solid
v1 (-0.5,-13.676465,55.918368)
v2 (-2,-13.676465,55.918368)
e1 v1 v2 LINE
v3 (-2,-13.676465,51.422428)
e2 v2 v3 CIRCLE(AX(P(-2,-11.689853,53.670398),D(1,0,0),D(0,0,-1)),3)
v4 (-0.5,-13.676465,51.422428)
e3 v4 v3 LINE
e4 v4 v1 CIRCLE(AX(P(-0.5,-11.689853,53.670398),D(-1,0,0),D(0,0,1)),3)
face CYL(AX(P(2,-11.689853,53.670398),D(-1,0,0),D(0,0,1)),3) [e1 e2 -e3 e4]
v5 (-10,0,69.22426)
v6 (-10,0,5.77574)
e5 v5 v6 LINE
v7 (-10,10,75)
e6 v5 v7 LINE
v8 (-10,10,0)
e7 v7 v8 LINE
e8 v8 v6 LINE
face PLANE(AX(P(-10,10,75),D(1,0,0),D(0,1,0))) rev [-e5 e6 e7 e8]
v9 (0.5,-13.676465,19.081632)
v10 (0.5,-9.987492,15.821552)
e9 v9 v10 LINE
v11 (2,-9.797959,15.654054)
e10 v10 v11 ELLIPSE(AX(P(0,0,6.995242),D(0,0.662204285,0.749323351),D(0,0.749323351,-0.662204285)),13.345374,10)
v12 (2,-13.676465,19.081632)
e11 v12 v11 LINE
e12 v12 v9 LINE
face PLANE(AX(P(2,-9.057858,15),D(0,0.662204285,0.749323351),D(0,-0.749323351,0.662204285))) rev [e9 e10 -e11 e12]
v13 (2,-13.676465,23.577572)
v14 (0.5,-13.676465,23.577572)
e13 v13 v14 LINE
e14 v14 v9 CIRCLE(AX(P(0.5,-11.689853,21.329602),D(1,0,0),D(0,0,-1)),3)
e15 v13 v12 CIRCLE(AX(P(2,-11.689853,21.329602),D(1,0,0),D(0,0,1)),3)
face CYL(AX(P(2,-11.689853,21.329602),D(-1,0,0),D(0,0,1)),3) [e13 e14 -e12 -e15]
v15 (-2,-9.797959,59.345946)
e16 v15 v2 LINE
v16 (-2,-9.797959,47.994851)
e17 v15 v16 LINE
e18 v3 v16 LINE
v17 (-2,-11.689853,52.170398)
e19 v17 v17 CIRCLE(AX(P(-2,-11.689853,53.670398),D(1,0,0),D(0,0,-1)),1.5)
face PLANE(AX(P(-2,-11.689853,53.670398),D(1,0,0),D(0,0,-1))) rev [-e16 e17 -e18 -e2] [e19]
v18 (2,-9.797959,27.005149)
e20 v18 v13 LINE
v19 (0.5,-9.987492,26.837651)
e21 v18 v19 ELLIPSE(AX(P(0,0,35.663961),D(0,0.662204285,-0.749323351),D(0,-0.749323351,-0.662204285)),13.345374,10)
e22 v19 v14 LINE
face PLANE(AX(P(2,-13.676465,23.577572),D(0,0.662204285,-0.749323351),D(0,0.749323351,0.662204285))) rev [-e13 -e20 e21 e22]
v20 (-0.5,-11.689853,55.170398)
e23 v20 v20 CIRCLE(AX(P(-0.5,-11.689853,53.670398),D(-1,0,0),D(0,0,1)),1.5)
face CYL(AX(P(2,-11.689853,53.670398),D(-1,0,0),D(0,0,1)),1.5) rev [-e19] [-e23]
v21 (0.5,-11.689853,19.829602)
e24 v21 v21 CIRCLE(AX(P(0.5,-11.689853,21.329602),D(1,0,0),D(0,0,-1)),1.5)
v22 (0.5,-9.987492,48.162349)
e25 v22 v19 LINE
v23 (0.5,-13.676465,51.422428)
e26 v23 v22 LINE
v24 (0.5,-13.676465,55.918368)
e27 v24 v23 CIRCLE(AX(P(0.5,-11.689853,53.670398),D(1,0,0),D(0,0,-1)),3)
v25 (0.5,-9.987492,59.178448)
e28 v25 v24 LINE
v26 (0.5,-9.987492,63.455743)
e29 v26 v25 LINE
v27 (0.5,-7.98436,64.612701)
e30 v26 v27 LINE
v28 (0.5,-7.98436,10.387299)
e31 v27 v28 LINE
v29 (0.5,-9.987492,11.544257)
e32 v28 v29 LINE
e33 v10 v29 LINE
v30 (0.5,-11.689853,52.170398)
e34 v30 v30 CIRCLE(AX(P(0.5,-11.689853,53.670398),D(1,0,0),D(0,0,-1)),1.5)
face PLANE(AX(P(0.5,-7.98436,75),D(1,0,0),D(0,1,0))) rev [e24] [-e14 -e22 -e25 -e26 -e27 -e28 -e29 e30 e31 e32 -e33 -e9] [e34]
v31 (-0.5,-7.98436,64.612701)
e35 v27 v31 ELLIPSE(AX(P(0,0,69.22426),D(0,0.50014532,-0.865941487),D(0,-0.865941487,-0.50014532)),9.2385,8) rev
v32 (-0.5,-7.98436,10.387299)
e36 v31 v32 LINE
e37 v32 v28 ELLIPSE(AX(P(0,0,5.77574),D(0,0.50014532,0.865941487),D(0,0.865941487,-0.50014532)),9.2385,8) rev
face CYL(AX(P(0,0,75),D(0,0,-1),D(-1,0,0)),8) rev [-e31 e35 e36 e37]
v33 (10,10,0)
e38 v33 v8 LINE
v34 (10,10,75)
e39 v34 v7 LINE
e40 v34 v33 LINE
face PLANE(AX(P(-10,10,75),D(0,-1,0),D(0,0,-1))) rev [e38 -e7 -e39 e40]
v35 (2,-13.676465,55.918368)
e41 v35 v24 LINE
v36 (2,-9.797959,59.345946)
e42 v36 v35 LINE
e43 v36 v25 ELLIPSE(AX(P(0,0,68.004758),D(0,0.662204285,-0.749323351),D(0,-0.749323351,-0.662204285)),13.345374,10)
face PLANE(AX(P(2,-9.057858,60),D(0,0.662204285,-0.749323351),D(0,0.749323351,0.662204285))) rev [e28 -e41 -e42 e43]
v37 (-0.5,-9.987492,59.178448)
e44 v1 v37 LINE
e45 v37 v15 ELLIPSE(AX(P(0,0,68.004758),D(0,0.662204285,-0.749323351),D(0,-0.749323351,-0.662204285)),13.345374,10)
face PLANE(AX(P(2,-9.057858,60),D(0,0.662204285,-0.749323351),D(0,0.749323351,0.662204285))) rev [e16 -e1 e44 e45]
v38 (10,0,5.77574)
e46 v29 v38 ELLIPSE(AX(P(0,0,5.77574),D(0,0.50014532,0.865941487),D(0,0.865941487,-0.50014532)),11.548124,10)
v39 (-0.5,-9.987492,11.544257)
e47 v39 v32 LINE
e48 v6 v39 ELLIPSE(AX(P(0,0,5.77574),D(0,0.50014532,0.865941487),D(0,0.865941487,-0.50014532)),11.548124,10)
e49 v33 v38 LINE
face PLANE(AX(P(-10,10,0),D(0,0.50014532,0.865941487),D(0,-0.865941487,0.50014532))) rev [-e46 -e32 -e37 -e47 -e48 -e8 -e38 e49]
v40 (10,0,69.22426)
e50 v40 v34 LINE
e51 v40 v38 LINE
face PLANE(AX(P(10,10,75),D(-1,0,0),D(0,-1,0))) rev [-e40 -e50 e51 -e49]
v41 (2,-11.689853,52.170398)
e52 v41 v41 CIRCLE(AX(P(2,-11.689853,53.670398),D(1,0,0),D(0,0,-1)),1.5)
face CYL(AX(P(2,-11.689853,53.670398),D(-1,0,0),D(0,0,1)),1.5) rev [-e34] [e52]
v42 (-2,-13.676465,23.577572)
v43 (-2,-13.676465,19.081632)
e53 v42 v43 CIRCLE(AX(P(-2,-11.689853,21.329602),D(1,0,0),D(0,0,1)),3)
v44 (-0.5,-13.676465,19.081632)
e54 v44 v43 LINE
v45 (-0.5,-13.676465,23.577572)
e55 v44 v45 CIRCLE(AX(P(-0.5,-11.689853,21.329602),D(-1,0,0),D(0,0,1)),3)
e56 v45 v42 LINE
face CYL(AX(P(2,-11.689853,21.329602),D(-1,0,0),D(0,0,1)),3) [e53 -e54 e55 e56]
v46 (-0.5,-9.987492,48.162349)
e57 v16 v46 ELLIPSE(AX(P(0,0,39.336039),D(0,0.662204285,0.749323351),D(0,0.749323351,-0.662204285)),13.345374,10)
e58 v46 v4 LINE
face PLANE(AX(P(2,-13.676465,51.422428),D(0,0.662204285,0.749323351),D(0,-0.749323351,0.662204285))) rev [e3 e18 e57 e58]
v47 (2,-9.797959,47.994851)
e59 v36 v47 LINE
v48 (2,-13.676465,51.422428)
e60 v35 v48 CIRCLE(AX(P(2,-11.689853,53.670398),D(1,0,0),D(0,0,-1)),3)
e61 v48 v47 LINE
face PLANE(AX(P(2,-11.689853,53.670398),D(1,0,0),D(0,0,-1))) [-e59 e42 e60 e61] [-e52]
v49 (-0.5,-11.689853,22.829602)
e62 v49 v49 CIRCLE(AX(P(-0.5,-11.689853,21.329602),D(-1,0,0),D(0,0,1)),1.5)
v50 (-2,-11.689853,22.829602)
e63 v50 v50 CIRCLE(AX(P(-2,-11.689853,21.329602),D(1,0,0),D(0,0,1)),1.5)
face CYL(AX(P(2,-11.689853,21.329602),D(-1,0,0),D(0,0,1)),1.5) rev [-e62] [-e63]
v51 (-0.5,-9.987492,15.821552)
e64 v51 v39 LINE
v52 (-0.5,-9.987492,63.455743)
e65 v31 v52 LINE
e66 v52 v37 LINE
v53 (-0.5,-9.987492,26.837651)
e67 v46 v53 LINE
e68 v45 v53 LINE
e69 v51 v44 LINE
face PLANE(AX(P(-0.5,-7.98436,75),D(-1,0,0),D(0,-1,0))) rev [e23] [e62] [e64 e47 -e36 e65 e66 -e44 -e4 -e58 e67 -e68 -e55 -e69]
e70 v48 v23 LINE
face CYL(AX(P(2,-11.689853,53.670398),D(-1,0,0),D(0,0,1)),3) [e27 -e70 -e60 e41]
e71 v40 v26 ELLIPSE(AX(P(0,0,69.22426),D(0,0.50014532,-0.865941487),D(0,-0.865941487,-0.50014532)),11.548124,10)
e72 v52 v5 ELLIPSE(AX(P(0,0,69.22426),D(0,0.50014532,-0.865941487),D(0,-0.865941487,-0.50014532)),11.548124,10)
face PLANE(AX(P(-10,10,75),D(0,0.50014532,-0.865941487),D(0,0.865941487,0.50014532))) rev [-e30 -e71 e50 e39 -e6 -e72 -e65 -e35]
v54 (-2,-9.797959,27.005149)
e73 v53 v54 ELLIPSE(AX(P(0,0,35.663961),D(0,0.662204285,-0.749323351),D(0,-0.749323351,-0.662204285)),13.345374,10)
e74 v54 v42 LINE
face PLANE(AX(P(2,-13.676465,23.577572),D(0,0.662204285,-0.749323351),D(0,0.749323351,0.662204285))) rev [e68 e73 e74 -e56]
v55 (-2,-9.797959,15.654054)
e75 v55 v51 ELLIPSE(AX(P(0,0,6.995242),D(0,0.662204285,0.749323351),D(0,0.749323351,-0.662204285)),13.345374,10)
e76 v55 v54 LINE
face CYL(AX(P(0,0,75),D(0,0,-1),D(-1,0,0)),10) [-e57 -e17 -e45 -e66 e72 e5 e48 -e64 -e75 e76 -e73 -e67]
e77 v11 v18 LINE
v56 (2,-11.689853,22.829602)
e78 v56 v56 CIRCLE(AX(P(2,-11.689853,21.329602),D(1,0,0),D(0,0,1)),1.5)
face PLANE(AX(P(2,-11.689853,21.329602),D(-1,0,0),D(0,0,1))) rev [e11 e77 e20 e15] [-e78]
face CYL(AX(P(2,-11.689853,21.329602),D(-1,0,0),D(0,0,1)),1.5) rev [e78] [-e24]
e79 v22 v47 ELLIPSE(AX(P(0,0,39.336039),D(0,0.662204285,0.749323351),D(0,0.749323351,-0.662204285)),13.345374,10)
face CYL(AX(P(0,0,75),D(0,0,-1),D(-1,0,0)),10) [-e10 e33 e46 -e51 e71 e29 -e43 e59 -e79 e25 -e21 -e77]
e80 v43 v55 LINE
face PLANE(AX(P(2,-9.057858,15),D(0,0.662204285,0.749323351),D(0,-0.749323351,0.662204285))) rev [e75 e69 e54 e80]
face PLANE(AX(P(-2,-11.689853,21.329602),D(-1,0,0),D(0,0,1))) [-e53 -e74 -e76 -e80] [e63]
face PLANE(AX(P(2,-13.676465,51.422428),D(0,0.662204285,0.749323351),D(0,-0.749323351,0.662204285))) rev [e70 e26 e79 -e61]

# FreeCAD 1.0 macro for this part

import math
import FreeCAD as App
import Part
import Sketcher

doc = App.newDocument("Part")
body = doc.addObject("PartDesign::Body", "Body")

sketch1 = body.newObject("Sketcher::SketchObject", "Sketch")
sketch1.AttachmentSupport = (doc.getObject("XY_Plane"), [""])
sketch1.MapMode = "FlatFace"
sketch1.addGeometry([
    Part.LineSegment(App.Vector(10, 10, 0), App.Vector(-10, 10, 0)),
    Part.LineSegment(App.Vector(-10, 10, 0), App.Vector(-10, 0, 0)),
    Part.ArcOfCircle(Part.Circle(App.Vector(0, 0, 0), App.Vector(0, 0, 1), 10), math.radians(180), math.radians(267)),
    Part.LineSegment(App.Vector(-0.5, -10, 0), App.Vector(-0.5, -8, 0)),
    Part.ArcOfCircle(Part.Circle(App.Vector(0, 0, 0), App.Vector(0, 0, 1), 8), math.radians(-86), math.radians(266)),
    Part.LineSegment(App.Vector(0.5, -8, 0), App.Vector(0.5, -10, 0)),
    Part.ArcOfCircle(Part.Circle(App.Vector(0, 0, 0), App.Vector(0, 0, 1), 10), math.radians(-87), math.radians(0)),
    Part.LineSegment(App.Vector(10, 0, 0), App.Vector(10, 10, 0)),
], False)
sketch1.addConstraint([
    Sketcher.Constraint("Coincident", 0, 2, 1, 1),
    Sketcher.Constraint("Tangent", 1, 2, 2, 1),
    Sketcher.Constraint("Coincident", 2, 2, 3, 1),
    Sketcher.Constraint("Coincident", 3, 2, 4, 2),
    Sketcher.Constraint("Coincident", 4, 1, 5, 1),
    Sketcher.Constraint("Coincident", 5, 2, 6, 1),
    Sketcher.Constraint("Tangent", 6, 2, 7, 1),
    Sketcher.Constraint("Coincident", 7, 2, 0, 1),
    Sketcher.Constraint("Horizontal", 0),
    Sketcher.Constraint("Vertical", 1),
    Sketcher.Constraint("Vertical", 3),
    Sketcher.Constraint("Vertical", 5),
    Sketcher.Constraint("Vertical", 7),
    Sketcher.Constraint("Coincident", 2, 3, -1, 1),
    Sketcher.Constraint("Coincident", 4, 3, -1, 1),
    Sketcher.Constraint("Coincident", 6, 3, -1, 1),
    Sketcher.Constraint("Equal", 2, 6),
    Sketcher.Constraint("Horizontal", 3, 2, 4, 1),
    Sketcher.Constraint("Radius", 2, 10.0),
    Sketcher.Constraint("Radius", 4, 8.0),
    Sketcher.Constraint("DistanceY", 1, 2, 1, 1, 10.0),
    Sketcher.Constraint("DistanceX", 3, 2, 4, 1, 1.0),
])
pad1 = body.newObject("PartDesign::Pad", "Pad")
pad1.Profile = sketch1
pad1.Length = 75

sketch2 = body.newObject("Sketcher::SketchObject", "Sketch001")
sketch2.AttachmentSupport = (doc.getObject("YZ_Plane"), [""])
sketch2.MapMode = "FlatFace"
sketch2.addGeometry([
    Part.LineSegment(App.Vector(-9.1, 60, 0), App.Vector(-13.7, 55.9, 0)),
    Part.ArcOfCircle(Part.Circle(App.Vector(-11.7, 53.7, 0), App.Vector(0, 0, 1), 3), math.radians(131), math.radians(229)),
    Part.LineSegment(App.Vector(-13.7, 51.4, 0), App.Vector(-9.1, 47.3, 0)),
    Part.LineSegment(App.Vector(-9.1, 47.3, 0), App.Vector(-9.1, 60, 0)),
    Part.Circle(App.Vector(-11.7, 53.7, 0), App.Vector(0, 0, 1), 1.5),
    Part.LineSegment(App.Vector(-13.7, 19.1, 0), App.Vector(-9.1, 15, 0)),
    Part.LineSegment(App.Vector(-9.1, 15, 0), App.Vector(-9.1, 27.7, 0)),
    Part.LineSegment(App.Vector(-9.1, 27.7, 0), App.Vector(-13.7, 23.6, 0)),
    Part.ArcOfCircle(Part.Circle(App.Vector(-11.7, 21.3, 0), App.Vector(0, 0, 1), 3), math.radians(131), math.radians(229)),
    Part.Circle(App.Vector(-11.7, 21.3, 0), App.Vector(0, 0, 1), 1.5),
], False)
sketch2.addConstraint([
    Sketcher.Constraint("Tangent", 0, 2, 1, 1),
    Sketcher.Constraint("Tangent", 1, 2, 2, 1),
    Sketcher.Constraint("Coincident", 2, 2, 3, 1),
    Sketcher.Constraint("Coincident", 3, 2, 0, 1),
    Sketcher.Constraint("Coincident", 5, 2, 6, 1),
    Sketcher.Constraint("Coincident", 6, 2, 7, 1),
    Sketcher.Constraint("Tangent", 7, 2, 8, 1),
    Sketcher.Constraint("Tangent", 8, 2, 5, 1),
    Sketcher.Constraint("Vertical", 3),
    Sketcher.Constraint("Vertical", 6),
    Sketcher.Constraint("Coincident", 4, 3, 1, 3),
    Sketcher.Constraint("Coincident", 9, 3, 8, 3),
    Sketcher.Constraint("Equal", 1, 8),
    Sketcher.Constraint("Equal", 4, 9),
    Sketcher.Constraint("Parallel", 2, 5),
    Sketcher.Constraint("Parallel", 0, 7),
    Sketcher.Constraint("Vertical", 4, 3, 8, 3),
    Sketcher.Constraint("Vertical", 0, 2, 1, 2),
    Sketcher.Constraint("Vertical", 3, 2, 5, 2),
    Sketcher.Constraint("Diameter", 4, 3.0),
    Sketcher.Constraint("Radius", 1, 3.0),
    Sketcher.Constraint("DistanceY", -1, 1, 3, 2, 60.0),
    Sketcher.Constraint("DistanceY", -1, 1, 5, 2, 15.0),
    Sketcher.Constraint("DistanceY", -1, 1, 1, 3, 53.670398),
    Sketcher.Constraint("DistanceY", -1, 1, 0, 2, 55.918368),
    Sketcher.Constraint("DistanceX", 1, 3, -1, 1, 11.689853),
])
pad2 = body.newObject("PartDesign::Pad", "Pad001")
pad2.Profile = sketch2
pad2.Length = 4
pad2.Midplane = True

sketch3 = body.newObject("Sketcher::SketchObject", "Sketch002")
sketch3.AttachmentSupport = (doc.getObject("XY_Plane"), [""])
sketch3.MapMode = "FlatFace"
sketch3.addGeometry([
    Part.LineSegment(App.Vector(-0.5, -8, 0), App.Vector(-0.5, -14.7, 0)),
    Part.LineSegment(App.Vector(-0.5, -14.7, 0), App.Vector(0.5, -14.7, 0)),
    Part.LineSegment(App.Vector(0.5, -14.7, 0), App.Vector(0.5, -8, 0)),
    Part.LineSegment(App.Vector(0.5, -8, 0), App.Vector(-0.5, -8, 0)),
], False)
sketch3.addConstraint([
    Sketcher.Constraint("Coincident", 0, 2, 1, 1),
    Sketcher.Constraint("Coincident", 1, 2, 2, 1),
    Sketcher.Constraint("Coincident", 2, 2, 3, 1),
    Sketcher.Constraint("Coincident", 3, 2, 0, 1),
    Sketcher.Constraint("Vertical", 0),
    Sketcher.Constraint("Horizontal", 1),
    Sketcher.Constraint("Vertical", 2),
    Sketcher.Constraint("Horizontal", 3),
    Sketcher.Constraint("DistanceX", 1, 1, 1, 2, 1.0),
    Sketcher.Constraint("DistanceX", 0, 2, -1, 1, 0.5),
    Sketcher.Constraint("DistanceY", 0, 2, 0, 1, 6.705493),
    Sketcher.Constraint("DistanceY", 2, 2, -1, 1, 7.98436),
])
pocket1 = body.newObject("PartDesign::Pocket", "Pocket")
pocket1.Profile = sketch3
pocket1.Type = "ThroughAll"
pocket1.Midplane = True

sketch4 = body.newObject("Sketcher::SketchObject", "Sketch003")
sketch4.AttachmentSupport = (doc.getObject("YZ_Plane"), [""])
sketch4.MapMode = "FlatFace"
sketch4.addGeometry([
    Part.LineSegment(App.Vector(-10, 63, 0), App.Vector(10, 75, 0)),
    Part.LineSegment(App.Vector(10, 75, 0), App.Vector(-10, 75, 0)),
    Part.LineSegment(App.Vector(-10, 75, 0), App.Vector(-10, 63, 0)),
    Part.LineSegment(App.Vector(-10, 12, 0), App.Vector(-10, 0, 0)),
    Part.LineSegment(App.Vector(-10, 0, 0), App.Vector(10, 0, 0)),
    Part.LineSegment(App.Vector(10, 0, 0), App.Vector(-10, 12, 0)),
], False)
sketch4.addConstraint([
    Sketcher.Constraint("Coincident", 0, 2, 1, 1),
    Sketcher.Constraint("Coincident", 1, 2, 2, 1),
    Sketcher.Constraint("Coincident", 2, 2, 0, 1),
    Sketcher.Constraint("Coincident", 3, 2, 4, 1),
    Sketcher.Constraint("Coincident", 4, 2, 5, 1),
    Sketcher.Constraint("Coincident", 5, 2, 3, 1),
    Sketcher.Constraint("Horizontal", 1),
    Sketcher.Constraint("Vertical", 2),
    Sketcher.Constraint("Vertical", 3),
    Sketcher.Constraint("Horizontal", 4),
    Sketcher.Constraint("PointOnObject", 3, 2, -1),
    Sketcher.Constraint("Vertical", 2, 2, 3, 2),
    Sketcher.Constraint("Vertical", 0, 2, 4, 2),
    Sketcher.Constraint("Equal", 2, 3),
    Sketcher.Constraint("DistanceX", -1, 1, 0, 2, 10.0),
    Sketcher.Constraint("DistanceY", -1, 1, 0, 2, 75.0),
    Sketcher.Constraint("DistanceX", 1, 2, 1, 1, 19.987492),
    Sketcher.Constraint("DistanceY", 2, 2, 2, 1, 11.544257),
])
pocket2 = body.newObject("PartDesign::Pocket", "Pocket001")
pocket2.Profile = sketch4
pocket2.Type = "ThroughAll"
pocket2.Midplane = True

doc.recompute()
